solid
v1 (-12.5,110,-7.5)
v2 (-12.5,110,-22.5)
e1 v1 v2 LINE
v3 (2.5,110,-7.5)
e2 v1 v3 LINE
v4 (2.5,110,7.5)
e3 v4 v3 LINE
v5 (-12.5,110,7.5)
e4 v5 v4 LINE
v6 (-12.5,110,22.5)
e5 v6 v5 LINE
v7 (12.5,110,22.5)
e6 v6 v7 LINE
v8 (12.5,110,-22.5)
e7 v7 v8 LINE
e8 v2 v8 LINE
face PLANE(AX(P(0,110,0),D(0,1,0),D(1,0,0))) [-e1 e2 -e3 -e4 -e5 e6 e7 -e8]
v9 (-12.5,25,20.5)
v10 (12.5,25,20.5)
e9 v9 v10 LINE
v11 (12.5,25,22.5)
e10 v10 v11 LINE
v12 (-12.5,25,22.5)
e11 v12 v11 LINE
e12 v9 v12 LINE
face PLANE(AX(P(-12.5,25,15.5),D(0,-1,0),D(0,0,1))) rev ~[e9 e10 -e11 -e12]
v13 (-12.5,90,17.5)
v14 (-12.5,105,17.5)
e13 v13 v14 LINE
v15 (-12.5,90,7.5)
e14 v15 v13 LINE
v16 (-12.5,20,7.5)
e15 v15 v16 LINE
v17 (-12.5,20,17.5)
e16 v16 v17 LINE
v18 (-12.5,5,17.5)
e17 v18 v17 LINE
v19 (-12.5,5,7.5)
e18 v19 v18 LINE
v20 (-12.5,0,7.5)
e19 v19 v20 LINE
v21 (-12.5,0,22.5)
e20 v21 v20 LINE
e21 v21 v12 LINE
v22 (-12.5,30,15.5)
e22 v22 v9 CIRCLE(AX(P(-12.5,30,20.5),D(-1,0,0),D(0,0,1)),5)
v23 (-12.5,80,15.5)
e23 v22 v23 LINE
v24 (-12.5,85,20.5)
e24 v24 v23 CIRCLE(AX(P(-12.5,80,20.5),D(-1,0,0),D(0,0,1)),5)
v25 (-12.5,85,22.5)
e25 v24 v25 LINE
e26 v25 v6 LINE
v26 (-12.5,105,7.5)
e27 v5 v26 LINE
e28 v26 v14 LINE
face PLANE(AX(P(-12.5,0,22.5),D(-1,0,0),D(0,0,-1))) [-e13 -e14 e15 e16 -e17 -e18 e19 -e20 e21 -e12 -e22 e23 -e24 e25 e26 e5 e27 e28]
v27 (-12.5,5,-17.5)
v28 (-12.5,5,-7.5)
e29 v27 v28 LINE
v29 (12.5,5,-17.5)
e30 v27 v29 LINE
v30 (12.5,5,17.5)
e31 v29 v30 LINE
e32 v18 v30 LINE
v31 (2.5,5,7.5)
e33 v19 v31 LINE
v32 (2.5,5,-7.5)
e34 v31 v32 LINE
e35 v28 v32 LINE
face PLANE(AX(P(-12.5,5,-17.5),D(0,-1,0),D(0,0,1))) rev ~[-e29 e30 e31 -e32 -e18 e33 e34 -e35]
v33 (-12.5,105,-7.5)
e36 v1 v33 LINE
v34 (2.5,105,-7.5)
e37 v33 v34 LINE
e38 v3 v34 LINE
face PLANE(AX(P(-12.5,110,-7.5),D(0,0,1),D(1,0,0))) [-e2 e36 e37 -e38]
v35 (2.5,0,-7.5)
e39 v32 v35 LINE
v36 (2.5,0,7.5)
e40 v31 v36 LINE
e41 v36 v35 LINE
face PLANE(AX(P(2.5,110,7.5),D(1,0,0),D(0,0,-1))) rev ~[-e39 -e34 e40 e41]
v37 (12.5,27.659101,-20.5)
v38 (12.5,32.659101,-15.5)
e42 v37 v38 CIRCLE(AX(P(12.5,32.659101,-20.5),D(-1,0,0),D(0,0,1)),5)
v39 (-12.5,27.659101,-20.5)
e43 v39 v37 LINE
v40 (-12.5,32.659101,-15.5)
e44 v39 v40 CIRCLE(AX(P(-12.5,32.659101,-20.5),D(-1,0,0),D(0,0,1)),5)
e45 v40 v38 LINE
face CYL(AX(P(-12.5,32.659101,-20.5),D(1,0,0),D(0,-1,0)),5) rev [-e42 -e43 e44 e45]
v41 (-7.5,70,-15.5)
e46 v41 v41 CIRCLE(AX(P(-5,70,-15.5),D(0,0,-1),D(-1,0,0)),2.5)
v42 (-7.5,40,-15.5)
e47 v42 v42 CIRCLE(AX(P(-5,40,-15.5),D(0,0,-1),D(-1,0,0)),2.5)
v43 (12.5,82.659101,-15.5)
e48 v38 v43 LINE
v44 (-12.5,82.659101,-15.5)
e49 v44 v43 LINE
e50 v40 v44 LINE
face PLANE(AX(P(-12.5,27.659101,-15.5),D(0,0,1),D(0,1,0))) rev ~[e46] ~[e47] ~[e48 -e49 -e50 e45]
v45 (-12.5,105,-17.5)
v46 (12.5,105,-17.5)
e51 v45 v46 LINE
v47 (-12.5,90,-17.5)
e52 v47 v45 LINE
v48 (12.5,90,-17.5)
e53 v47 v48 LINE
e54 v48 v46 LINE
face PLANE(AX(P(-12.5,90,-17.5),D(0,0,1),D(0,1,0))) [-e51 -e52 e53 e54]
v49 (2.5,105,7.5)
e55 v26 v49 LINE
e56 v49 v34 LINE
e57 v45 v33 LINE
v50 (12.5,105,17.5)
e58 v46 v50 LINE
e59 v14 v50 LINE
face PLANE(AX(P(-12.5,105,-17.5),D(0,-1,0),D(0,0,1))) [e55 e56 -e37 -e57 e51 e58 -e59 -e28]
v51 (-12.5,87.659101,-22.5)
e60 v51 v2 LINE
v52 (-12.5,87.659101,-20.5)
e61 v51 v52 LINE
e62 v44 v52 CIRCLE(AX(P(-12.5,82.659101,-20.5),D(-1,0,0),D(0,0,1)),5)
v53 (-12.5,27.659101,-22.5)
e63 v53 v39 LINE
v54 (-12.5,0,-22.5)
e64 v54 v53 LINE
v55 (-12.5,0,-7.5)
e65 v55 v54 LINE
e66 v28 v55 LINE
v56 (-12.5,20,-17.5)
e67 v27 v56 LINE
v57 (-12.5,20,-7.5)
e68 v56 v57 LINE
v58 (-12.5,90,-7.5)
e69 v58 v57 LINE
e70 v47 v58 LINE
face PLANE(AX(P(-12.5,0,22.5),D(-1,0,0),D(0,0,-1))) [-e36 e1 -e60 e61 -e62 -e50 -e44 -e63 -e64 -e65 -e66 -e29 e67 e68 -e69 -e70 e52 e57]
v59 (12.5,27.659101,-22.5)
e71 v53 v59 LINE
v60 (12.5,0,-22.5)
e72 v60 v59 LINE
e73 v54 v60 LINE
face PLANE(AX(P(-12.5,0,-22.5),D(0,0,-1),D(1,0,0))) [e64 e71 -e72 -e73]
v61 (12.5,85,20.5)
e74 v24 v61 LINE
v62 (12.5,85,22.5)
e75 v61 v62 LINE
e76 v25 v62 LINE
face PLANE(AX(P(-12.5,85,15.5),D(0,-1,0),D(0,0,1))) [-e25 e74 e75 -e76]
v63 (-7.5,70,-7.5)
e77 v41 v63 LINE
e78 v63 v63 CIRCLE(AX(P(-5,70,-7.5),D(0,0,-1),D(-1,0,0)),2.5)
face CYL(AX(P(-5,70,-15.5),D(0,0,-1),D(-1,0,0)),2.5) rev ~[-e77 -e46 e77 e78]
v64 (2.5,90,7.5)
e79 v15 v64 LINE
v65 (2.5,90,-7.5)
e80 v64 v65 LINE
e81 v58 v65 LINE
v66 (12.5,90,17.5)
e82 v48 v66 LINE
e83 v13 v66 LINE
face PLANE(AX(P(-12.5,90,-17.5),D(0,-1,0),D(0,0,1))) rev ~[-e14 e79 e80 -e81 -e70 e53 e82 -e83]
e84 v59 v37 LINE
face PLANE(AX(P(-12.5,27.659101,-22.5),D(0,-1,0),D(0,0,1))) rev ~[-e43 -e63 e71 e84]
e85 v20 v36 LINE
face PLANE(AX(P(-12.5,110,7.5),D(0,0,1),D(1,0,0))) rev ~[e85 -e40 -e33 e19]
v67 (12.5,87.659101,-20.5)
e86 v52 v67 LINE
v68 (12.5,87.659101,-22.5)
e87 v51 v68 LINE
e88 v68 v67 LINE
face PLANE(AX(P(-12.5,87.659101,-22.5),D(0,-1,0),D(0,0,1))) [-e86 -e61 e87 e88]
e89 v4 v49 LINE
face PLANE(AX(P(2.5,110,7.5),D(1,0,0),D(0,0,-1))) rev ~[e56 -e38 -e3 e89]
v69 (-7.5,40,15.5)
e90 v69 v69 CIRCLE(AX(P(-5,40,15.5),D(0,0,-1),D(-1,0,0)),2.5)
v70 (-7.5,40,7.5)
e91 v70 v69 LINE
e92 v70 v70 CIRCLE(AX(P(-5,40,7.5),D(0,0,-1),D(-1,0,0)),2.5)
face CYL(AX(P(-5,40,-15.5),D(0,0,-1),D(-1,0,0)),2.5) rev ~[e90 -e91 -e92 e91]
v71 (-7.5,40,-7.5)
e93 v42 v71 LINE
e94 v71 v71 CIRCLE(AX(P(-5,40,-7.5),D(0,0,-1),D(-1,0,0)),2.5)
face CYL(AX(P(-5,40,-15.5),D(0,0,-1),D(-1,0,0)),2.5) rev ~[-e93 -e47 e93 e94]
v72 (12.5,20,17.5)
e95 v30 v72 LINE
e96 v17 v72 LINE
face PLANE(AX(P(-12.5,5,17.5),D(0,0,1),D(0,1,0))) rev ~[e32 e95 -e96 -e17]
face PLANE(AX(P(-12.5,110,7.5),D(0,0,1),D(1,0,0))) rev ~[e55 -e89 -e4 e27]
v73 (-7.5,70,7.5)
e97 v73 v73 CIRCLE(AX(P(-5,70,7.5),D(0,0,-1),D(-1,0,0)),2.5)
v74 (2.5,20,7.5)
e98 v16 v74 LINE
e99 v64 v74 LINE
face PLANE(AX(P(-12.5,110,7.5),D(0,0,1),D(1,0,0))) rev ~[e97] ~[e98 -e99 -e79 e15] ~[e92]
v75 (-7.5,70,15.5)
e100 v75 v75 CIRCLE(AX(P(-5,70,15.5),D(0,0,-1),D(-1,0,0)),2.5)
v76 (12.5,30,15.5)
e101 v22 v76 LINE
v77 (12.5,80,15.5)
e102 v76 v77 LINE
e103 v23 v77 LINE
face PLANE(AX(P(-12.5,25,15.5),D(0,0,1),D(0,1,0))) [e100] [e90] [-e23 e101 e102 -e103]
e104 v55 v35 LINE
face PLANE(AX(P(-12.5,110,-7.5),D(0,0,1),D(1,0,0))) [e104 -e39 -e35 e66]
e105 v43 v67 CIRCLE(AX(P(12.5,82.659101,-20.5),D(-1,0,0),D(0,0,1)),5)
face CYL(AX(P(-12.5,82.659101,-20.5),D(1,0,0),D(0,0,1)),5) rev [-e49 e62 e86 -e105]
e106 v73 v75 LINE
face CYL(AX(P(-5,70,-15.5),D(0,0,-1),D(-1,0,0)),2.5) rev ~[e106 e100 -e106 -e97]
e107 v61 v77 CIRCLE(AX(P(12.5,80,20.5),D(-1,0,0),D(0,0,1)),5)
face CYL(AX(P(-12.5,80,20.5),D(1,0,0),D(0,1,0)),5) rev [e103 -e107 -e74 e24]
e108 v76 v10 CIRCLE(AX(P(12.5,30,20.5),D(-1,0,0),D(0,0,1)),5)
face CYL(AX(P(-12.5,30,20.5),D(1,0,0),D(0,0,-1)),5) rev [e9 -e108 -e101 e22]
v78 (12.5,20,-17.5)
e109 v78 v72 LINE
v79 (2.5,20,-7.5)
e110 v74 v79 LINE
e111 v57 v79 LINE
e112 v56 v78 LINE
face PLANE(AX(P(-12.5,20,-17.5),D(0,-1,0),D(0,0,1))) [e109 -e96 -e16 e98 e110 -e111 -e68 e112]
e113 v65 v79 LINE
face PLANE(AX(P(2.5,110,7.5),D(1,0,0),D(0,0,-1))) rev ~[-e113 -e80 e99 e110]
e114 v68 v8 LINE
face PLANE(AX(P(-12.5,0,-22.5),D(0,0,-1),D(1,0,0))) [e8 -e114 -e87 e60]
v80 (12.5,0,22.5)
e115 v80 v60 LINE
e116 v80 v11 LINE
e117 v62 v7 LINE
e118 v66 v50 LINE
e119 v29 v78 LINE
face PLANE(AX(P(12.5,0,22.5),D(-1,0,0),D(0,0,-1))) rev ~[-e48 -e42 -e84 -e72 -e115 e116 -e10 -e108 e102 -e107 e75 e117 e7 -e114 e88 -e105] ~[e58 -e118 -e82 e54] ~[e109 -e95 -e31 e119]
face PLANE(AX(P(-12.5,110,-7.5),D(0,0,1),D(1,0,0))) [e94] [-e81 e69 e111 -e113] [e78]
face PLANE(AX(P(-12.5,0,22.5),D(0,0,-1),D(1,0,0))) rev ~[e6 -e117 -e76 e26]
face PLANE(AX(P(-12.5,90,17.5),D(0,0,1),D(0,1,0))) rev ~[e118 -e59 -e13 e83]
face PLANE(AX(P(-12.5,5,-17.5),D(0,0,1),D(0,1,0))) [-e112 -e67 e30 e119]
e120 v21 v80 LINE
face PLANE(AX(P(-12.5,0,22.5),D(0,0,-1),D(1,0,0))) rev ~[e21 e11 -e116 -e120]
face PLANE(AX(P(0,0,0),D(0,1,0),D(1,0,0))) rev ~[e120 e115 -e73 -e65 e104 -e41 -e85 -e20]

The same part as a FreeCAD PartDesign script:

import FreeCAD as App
import Part
import Sketcher


def edges_at(feature, points):
    """Names of the edges that pass closest to the given points."""
    edges = feature.Shape.Edges
    near = lambda p: min(range(len(edges)), key=lambda i: edges[i].distToShape(Part.Vertex(*p))[0])
    return sorted({f"Edge{near(p) + 1}" for p in points})

doc = App.newDocument("Part")
body = doc.addObject("PartDesign::Body", "Body")

# Sketch on XZ plane
sketch1 = doc.addObject("Sketcher::SketchObject", "Sketch")
body.addObject(sketch1)
sketch1.AttachmentSupport = (doc.XZ_Plane, [""])
sketch1.MapMode = "FlatFace"
sketch1.addGeometry([
    Part.LineSegment(App.Vector(-12, -22, 0), App.Vector(-12, 22, 0)),
    Part.LineSegment(App.Vector(-12, 22, 0), App.Vector(12, 22, 0)),
    Part.LineSegment(App.Vector(12, 22, 0), App.Vector(12, -22, 0)),
    Part.LineSegment(App.Vector(12, -22, 0), App.Vector(-12, -22, 0)),
], False)
sketch1.addConstraint([
    Sketcher.Constraint("Coincident", 0, 2, 1, 1),
    Sketcher.Constraint("Coincident", 1, 2, 2, 1),
    Sketcher.Constraint("Coincident", 2, 2, 3, 1),
    Sketcher.Constraint("Coincident", 3, 2, 0, 1),
    Sketcher.Constraint("Vertical", 0),
    Sketcher.Constraint("Horizontal", 1),
    Sketcher.Constraint("Vertical", 2),
    Sketcher.Constraint("Horizontal", 3),
    Sketcher.Constraint("Symmetric", 0, 2, 2, 2, -1, 1),
    Sketcher.Constraint("DistanceX", 1, 1, 1, 2, 25.0),
    Sketcher.Constraint("DistanceY", 0, 1, 0, 2, 45.0),
])
pad1 = doc.addObject("PartDesign::Pad", "Pad")
body.addObject(pad1)
pad1.Profile = sketch1
pad1.Length = 110
pad1.Reversed = True

# Sketch on XZ plane
sketch2 = doc.addObject("Sketcher::SketchObject", "Sketch001")
body.addObject(sketch2)
sketch2.AttachmentSupport = (doc.XZ_Plane, [""])
sketch2.MapMode = "FlatFace"
sketch2.AttachmentOffset = App.Placement(App.Vector(0, 0, -110), App.Rotation())
sketch2.addGeometry([
    Part.LineSegment(App.Vector(-12, -8, 0), App.Vector(-12, 8, 0)),
    Part.LineSegment(App.Vector(-12, 8, 0), App.Vector(2, 8, 0)),
    Part.LineSegment(App.Vector(2, 8, 0), App.Vector(2, -8, 0)),
    Part.LineSegment(App.Vector(2, -8, 0), App.Vector(-12, -8, 0)),
], False)
sketch2.addConstraint([
    Sketcher.Constraint("Coincident", 0, 2, 1, 1),
    Sketcher.Constraint("Coincident", 1, 2, 2, 1),
    Sketcher.Constraint("Coincident", 2, 2, 3, 1),
    Sketcher.Constraint("Coincident", 3, 2, 0, 1),
    Sketcher.Constraint("Vertical", 0),
    Sketcher.Constraint("Horizontal", 1),
    Sketcher.Constraint("Vertical", 2),
    Sketcher.Constraint("Horizontal", 3),
    Sketcher.Constraint("Equal", 3, 0),
    Sketcher.Constraint("DistanceX", 1, 1, 1, 2, 15.0),
    Sketcher.Constraint("DistanceX", 0, 2, -1, 1, 12.5),
    Sketcher.Constraint("DistanceY", -1, 1, 0, 2, 7.5),
])
pocket1 = doc.addObject("PartDesign::Pocket", "Pocket")
body.addObject(pocket1)
pocket1.Profile = sketch2
pocket1.Length = 110
pocket1.Reversed = True

# Sketch on YZ plane
sketch3 = doc.addObject("Sketcher::SketchObject", "Sketch002")
body.addObject(sketch3)
sketch3.AttachmentSupport = (doc.YZ_Plane, [""])
sketch3.MapMode = "FlatFace"
sketch3.AttachmentOffset = App.Placement(App.Vector(0, 0, -12.5), App.Rotation())
sketch3.addGeometry([
    Part.LineSegment(App.Vector(20, -18, 0), App.Vector(5, -18, 0)),
    Part.LineSegment(App.Vector(5, -18, 0), App.Vector(5, 18, 0)),
    Part.LineSegment(App.Vector(5, 18, 0), App.Vector(20, 18, 0)),
    Part.LineSegment(App.Vector(20, 18, 0), App.Vector(20, -18, 0)),
], False)
sketch3.addConstraint([
    Sketcher.Constraint("Coincident", 0, 2, 1, 1),
    Sketcher.Constraint("Coincident", 1, 2, 2, 1),
    Sketcher.Constraint("Coincident", 2, 2, 3, 1),
    Sketcher.Constraint("Coincident", 3, 2, 0, 1),
    Sketcher.Constraint("Horizontal", 0),
    Sketcher.Constraint("Vertical", 1),
    Sketcher.Constraint("Horizontal", 2),
    Sketcher.Constraint("Vertical", 3),
    Sketcher.Constraint("DistanceX", 0, 2, 0, 1, 15.0),
    Sketcher.Constraint("DistanceY", 1, 1, 1, 2, 35.0),
    Sketcher.Constraint("DistanceX", -1, 1, 0, 2, 5.0),
    Sketcher.Constraint("DistanceY", 0, 2, -1, 1, 17.5),
])
pocket2 = doc.addObject("PartDesign::Pocket", "Pocket001")
body.addObject(pocket2)
pocket2.Profile = sketch3
pocket2.Length = 38
pocket2.Reversed = True

# Sketch on YZ plane
sketch4 = doc.addObject("Sketcher::SketchObject", "Sketch003")
body.addObject(sketch4)
sketch4.AttachmentSupport = (doc.YZ_Plane, [""])
sketch4.MapMode = "FlatFace"
sketch4.AttachmentOffset = App.Placement(App.Vector(0, 0, -12.5), App.Rotation())
sketch4.addGeometry([
    Part.LineSegment(App.Vector(85, 16, 0), App.Vector(25, 16, 0)),
    Part.LineSegment(App.Vector(25, 16, 0), App.Vector(25, 22, 0)),
    Part.LineSegment(App.Vector(25, 22, 0), App.Vector(85, 22, 0)),
    Part.LineSegment(App.Vector(85, 22, 0), App.Vector(85, 16, 0)),
], False)
sketch4.addConstraint([
    Sketcher.Constraint("Coincident", 0, 2, 1, 1),
    Sketcher.Constraint("Coincident", 1, 2, 2, 1),
    Sketcher.Constraint("Coincident", 2, 2, 3, 1),
    Sketcher.Constraint("Coincident", 3, 2, 0, 1),
    Sketcher.Constraint("Horizontal", 0),
    Sketcher.Constraint("Vertical", 1),
    Sketcher.Constraint("Horizontal", 2),
    Sketcher.Constraint("Vertical", 3),
    Sketcher.Constraint("DistanceX", 0, 2, 0, 1, 60.0),
    Sketcher.Constraint("DistanceY", 1, 1, 1, 2, 7.0),
    Sketcher.Constraint("DistanceX", -1, 1, 0, 2, 25.0),
    Sketcher.Constraint("DistanceY", -1, 1, 0, 2, 15.5),
])
pocket3 = doc.addObject("PartDesign::Pocket", "Pocket002")
body.addObject(pocket3)
pocket3.Profile = sketch4
pocket3.Length = 38
pocket3.Reversed = True

# Sketch on YZ plane
sketch5 = doc.addObject("Sketcher::SketchObject", "Sketch004")
body.addObject(sketch5)
sketch5.AttachmentSupport = (doc.YZ_Plane, [""])
sketch5.MapMode = "FlatFace"
sketch5.AttachmentOffset = App.Placement(App.Vector(0, 0, -12.5), App.Rotation())
sketch5.addGeometry([
    Part.LineSegment(App.Vector(105, -18, 0), App.Vector(90, -18, 0)),
    Part.LineSegment(App.Vector(90, -18, 0), App.Vector(90, 18, 0)),
    Part.LineSegment(App.Vector(90, 18, 0), App.Vector(105, 18, 0)),
    Part.LineSegment(App.Vector(105, 18, 0), App.Vector(105, -18, 0)),
], False)
sketch5.addConstraint([
    Sketcher.Constraint("Coincident", 0, 2, 1, 1),
    Sketcher.Constraint("Coincident", 1, 2, 2, 1),
    Sketcher.Constraint("Coincident", 2, 2, 3, 1),
    Sketcher.Constraint("Coincident", 3, 2, 0, 1),
    Sketcher.Constraint("Horizontal", 0),
    Sketcher.Constraint("Vertical", 1),
    Sketcher.Constraint("Horizontal", 2),
    Sketcher.Constraint("Vertical", 3),
    Sketcher.Constraint("DistanceX", 0, 2, 0, 1, 15.0),
    Sketcher.Constraint("DistanceY", 1, 1, 1, 2, 35.0),
    Sketcher.Constraint("DistanceX", -1, 1, 0, 2, 90.0),
    Sketcher.Constraint("DistanceY", 0, 2, -1, 1, 17.5),
])
pocket4 = doc.addObject("PartDesign::Pocket", "Pocket003")
body.addObject(pocket4)
pocket4.Profile = sketch5
pocket4.Length = 38
pocket4.Reversed = True
doc.recompute()

fillet = doc.addObject("PartDesign::Fillet", "Fillet")
body.addObject(fillet)
fillet.Base = (pocket4, edges_at(pocket4, [(0, 25, 15.5), (0, 85, 15.5)]))
fillet.Radius = 5

# Sketch on YZ plane
sketch6 = doc.addObject("Sketcher::SketchObject", "Sketch005")
body.addObject(sketch6)
sketch6.AttachmentSupport = (doc.YZ_Plane, [""])
sketch6.MapMode = "FlatFace"
sketch6.AttachmentOffset = App.Placement(App.Vector(0, 0, -12.5), App.Rotation())
sketch6.addGeometry([
    Part.LineSegment(App.Vector(88, -22, 0), App.Vector(28, -22, 0)),
    Part.LineSegment(App.Vector(28, -22, 0), App.Vector(28, -16, 0)),
    Part.LineSegment(App.Vector(28, -16, 0), App.Vector(88, -16, 0)),
    Part.LineSegment(App.Vector(88, -16, 0), App.Vector(88, -22, 0)),
], False)
sketch6.addConstraint([
    Sketcher.Constraint("Coincident", 0, 2, 1, 1),
    Sketcher.Constraint("Coincident", 1, 2, 2, 1),
    Sketcher.Constraint("Coincident", 2, 2, 3, 1),
    Sketcher.Constraint("Coincident", 3, 2, 0, 1),
    Sketcher.Constraint("Horizontal", 0),
    Sketcher.Constraint("Vertical", 1),
    Sketcher.Constraint("Horizontal", 2),
    Sketcher.Constraint("Vertical", 3),
    Sketcher.Constraint("DistanceX", 0, 2, 0, 1, 60.0),
    Sketcher.Constraint("DistanceY", 1, 1, 1, 2, 7.0),
    Sketcher.Constraint("DistanceY", 0, 2, -1, 1, 22.5),
    Sketcher.Constraint("DistanceX", -1, 1, 0, 2, 27.659101),
])
pocket5 = doc.addObject("PartDesign::Pocket", "Pocket004")
body.addObject(pocket5)
pocket5.Profile = sketch6
pocket5.Length = 38
pocket5.Reversed = True
doc.recompute()

fillet2 = doc.addObject("PartDesign::Fillet", "Fillet001")
body.addObject(fillet2)
fillet2.Base = (pocket5, edges_at(pocket5, [(0, 87.659, -15.5), (0, 27.659, -15.5)]))
fillet2.Radius = 5

# Sketch on XY plane
sketch7 = doc.addObject("Sketcher::SketchObject", "Sketch006")
body.addObject(sketch7)
sketch7.AttachmentSupport = (doc.XY_Plane, [""])
sketch7.MapMode = "FlatFace"
sketch7.AttachmentOffset = App.Placement(App.Vector(0, 0, -15.5), App.Rotation())
sketch7.addGeometry([
    Part.Circle(App.Vector(-5, 40, 0), App.Vector(0, 0, 1), 2.5),
    Part.Circle(App.Vector(-5, 70, 0), App.Vector(0, 0, 1), 2.5),
], False)
sketch7.addConstraint([
    Sketcher.Constraint("Equal", 0, 1),
    Sketcher.Constraint("Vertical", 0, 3, 1, 3),
    Sketcher.Constraint("Diameter", 0, 5.0),
    Sketcher.Constraint("DistanceX", 0, 3, -1, 1, 5.0),
    Sketcher.Constraint("DistanceY", -1, 1, 0, 3, 40.0),
    Sketcher.Constraint("DistanceY", -1, 1, 1, 3, 70.0),
])
pocket6 = doc.addObject("PartDesign::Pocket", "Pocket005")
body.addObject(pocket6)
pocket6.Profile = sketch7
pocket6.Length = 40
pocket6.Reversed = True

doc.recompute()
